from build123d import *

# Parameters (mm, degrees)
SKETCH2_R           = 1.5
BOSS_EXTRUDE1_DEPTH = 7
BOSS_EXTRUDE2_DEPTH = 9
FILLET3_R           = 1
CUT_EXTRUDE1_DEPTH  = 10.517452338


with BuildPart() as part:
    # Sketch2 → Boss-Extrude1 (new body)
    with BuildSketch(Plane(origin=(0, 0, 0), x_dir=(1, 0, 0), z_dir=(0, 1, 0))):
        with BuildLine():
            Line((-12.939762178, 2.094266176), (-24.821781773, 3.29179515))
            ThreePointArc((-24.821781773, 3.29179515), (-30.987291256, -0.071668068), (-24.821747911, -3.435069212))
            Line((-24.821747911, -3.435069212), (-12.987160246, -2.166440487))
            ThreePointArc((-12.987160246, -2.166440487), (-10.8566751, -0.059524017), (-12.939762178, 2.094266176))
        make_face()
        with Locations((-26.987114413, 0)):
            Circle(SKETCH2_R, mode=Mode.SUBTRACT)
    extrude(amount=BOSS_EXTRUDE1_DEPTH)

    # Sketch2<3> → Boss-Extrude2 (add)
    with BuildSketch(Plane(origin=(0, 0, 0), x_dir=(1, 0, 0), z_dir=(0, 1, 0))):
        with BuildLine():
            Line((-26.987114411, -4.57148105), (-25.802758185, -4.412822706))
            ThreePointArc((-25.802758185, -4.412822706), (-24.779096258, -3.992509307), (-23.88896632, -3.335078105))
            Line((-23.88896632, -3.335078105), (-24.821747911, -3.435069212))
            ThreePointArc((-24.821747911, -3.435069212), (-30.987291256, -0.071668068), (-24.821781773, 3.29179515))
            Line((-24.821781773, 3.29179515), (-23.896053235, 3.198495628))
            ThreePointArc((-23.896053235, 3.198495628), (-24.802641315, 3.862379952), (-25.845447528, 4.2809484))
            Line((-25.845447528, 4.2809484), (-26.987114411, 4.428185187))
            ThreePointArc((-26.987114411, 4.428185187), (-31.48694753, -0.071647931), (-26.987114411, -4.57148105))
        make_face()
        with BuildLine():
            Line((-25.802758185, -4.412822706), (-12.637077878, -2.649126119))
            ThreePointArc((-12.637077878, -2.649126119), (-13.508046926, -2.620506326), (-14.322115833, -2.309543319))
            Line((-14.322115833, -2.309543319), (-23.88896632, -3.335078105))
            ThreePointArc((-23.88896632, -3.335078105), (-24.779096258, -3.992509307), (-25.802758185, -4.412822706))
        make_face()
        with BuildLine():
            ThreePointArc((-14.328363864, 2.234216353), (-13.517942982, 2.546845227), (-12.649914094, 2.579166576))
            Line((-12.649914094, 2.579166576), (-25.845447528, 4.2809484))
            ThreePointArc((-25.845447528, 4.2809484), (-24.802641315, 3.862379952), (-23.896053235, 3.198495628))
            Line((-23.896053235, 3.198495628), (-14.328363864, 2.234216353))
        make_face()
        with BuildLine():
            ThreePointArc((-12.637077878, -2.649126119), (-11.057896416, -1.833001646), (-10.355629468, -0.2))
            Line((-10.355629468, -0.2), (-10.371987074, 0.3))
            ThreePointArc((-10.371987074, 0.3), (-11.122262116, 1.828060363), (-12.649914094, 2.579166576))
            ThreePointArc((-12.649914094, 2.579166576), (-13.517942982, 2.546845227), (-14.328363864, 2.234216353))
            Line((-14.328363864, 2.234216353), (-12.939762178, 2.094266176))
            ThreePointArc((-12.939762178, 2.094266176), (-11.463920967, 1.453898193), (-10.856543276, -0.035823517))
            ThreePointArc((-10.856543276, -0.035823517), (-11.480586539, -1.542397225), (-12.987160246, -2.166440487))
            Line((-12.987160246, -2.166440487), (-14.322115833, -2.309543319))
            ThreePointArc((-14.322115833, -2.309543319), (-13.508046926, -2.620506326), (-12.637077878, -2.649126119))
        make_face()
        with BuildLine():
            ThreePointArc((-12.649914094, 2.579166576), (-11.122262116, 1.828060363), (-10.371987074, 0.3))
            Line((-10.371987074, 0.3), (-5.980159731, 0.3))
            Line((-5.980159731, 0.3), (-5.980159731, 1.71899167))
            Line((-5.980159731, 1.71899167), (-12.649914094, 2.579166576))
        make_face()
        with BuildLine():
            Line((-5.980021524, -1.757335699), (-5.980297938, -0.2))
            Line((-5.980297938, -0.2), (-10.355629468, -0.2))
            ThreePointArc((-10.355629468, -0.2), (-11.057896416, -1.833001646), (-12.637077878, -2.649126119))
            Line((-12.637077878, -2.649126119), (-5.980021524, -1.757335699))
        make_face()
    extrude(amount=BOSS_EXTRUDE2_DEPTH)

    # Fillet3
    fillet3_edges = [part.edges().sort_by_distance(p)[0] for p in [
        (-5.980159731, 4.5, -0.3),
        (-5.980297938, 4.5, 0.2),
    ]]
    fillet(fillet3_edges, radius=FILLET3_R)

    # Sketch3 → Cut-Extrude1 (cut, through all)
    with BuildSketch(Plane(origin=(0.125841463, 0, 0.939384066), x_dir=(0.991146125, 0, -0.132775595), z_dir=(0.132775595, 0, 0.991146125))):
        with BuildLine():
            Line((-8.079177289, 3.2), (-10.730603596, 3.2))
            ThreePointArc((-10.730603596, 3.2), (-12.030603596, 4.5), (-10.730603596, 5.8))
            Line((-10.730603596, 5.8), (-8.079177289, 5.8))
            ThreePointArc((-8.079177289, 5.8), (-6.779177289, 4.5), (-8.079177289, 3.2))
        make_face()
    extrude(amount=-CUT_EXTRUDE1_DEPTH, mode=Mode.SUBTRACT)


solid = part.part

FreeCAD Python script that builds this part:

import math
import FreeCAD as App
import Part
import Sketcher


def edges_at(feature, points):
    """Names of the edges that pass closest to the given points."""
    edges = feature.Shape.Edges
    near = lambda p: min(range(len(edges)), key=lambda i: edges[i].distToShape(Part.Vertex(*p))[0])
    return sorted({f"Edge{near(p) + 1}" for p in points})

doc = App.newDocument("Part")
body = doc.addObject("PartDesign::Body", "Body")

sketch1 = doc.addObject("Sketcher::SketchObject", "Sketch")
body.addObject(sketch1)
sketch1.AttachmentSupport = (doc.XZ_Plane, [""])
sketch1.MapMode = "FlatFace"
sketch1.addGeometry([
    Part.LineSegment(App.Vector(-12.939762, -2.094266, 0), App.Vector(-24.821782, -3.291795, 0)),
    Part.ArcOfCircle(Part.Circle(App.Vector(-26.987114, 0.071648, 0), App.Vector(0, 0, 1), 4.000177), math.radians(57.226615), math.radians(302.772808)),
    Part.LineSegment(App.Vector(-24.821748, 3.435069, 0), App.Vector(-12.98716, 2.16644, 0)),
    Part.ArcOfCircle(Part.Circle(App.Vector(-12.98716, 0.035824, 0), App.Vector(0, 0, 1), 2.130617), math.radians(-88.725283), math.radians(90)),
    Part.Circle(App.Vector(-26.987114, 0, 0), App.Vector(0, 0, 1), 1.5),
], False)
sketch1.addConstraint([
    Sketcher.Constraint("Coincident", 0, 2, 1, 2),
    Sketcher.Constraint("Coincident", 1, 1, 2, 1),
    Sketcher.Constraint("Coincident", 2, 2, 3, 2),
    Sketcher.Constraint("Coincident", 3, 1, 0, 1),
    Sketcher.Constraint("PointOnObject", 4, 3, -1),
    Sketcher.Constraint("Vertical", 1, 3, 4, 3),
    Sketcher.Constraint("Vertical", 3, 3, 2, 2),
    Sketcher.Constraint("Diameter", 4, 3.0),
    Sketcher.Constraint("Radius", 1, 4.000177),
    Sketcher.Constraint("Radius", 3, 2.130617),
    Sketcher.Constraint("DistanceX", 3, 3, 3, 1, 0.047398),
    Sketcher.Constraint("Distance", 2, 11.90239),
    Sketcher.Constraint("DistanceX", 3, 3, -1, 1, 12.98716),
    Sketcher.Constraint("DistanceX", 0, 2, -1, 1, 24.821782),
    Sketcher.Constraint("DistanceY", -1, 1, 1, 1, 3.435069),
    Sketcher.Constraint("DistanceY", -1, 1, 2, 2, 2.16644),
    Sketcher.Constraint("DistanceY", 0, 2, 3, 3, 3.327619),
])
pad1 = doc.addObject("PartDesign::Pad", "Pad")
body.addObject(pad1)
pad1.Profile = sketch1
pad1.Length = 7
pad1.Reversed = True

sketch2 = doc.addObject("Sketcher::SketchObject", "Sketch001")
body.addObject(sketch2)
sketch2.AttachmentSupport = (doc.XZ_Plane, [""])
sketch2.MapMode = "FlatFace"
sketch2.addGeometry([
    Part.LineSegment(App.Vector(-26.987114, 4.571481, 0), App.Vector(-25.802758, 4.412823, 0)),
    Part.LineSegment(App.Vector(-25.802758, 4.412823, 0), App.Vector(-12.637078, 2.649126, 0)),
    Part.LineSegment(App.Vector(-12.637078, 2.649126, 0), App.Vector(-5.980022, 1.757336, 0)),
    Part.LineSegment(App.Vector(-5.980022, 1.757336, 0), App.Vector(-5.980298, 0.2, 0)),
    Part.LineSegment(App.Vector(-5.980298, 0.2, 0), App.Vector(-10.355629, 0.2, 0)),
    Part.LineSegment(App.Vector(-10.355629, 0.2, 0), App.Vector(-10.371987, -0.3, 0)),
    Part.LineSegment(App.Vector(-10.371987, -0.3, 0), App.Vector(-5.98016, -0.3, 0)),
    Part.LineSegment(App.Vector(-5.98016, -0.3, 0), App.Vector(-5.98016, -1.718992, 0)),
    Part.LineSegment(App.Vector(-5.98016, -1.718992, 0), App.Vector(-12.649914, -2.579167, 0)),
    Part.LineSegment(App.Vector(-12.649914, -2.579167, 0), App.Vector(-25.845448, -4.280948, 0)),
    Part.LineSegment(App.Vector(-25.845448, -4.280948, 0), App.Vector(-26.987114, -4.428185, 0)),
    Part.ArcOfCircle(Part.Circle(App.Vector(-26.987114, 0.071648, 0), App.Vector(0, 0, 1), 4.499833), math.radians(90), math.radians(270)),
    Part.LineSegment(App.Vector(-14.322116, 2.309543, 0), App.Vector(-23.888966, 3.335078, 0)),
    Part.LineSegment(App.Vector(-23.888966, 3.335078, 0), App.Vector(-24.821748, 3.435069, 0)),
    Part.ArcOfCircle(Part.Circle(App.Vector(-26.987114, 0.071648, 0), App.Vector(0, 0, 1), 4.000177), math.radians(57.226615), math.radians(302.772808)),
    Part.LineSegment(App.Vector(-24.821782, -3.291795, 0), App.Vector(-23.896053, -3.198496, 0)),
    Part.LineSegment(App.Vector(-23.896053, -3.198496, 0), App.Vector(-14.328364, -2.234216, 0)),
    Part.LineSegment(App.Vector(-14.328364, -2.234216, 0), App.Vector(-12.939762, -2.094266, 0)),
    Part.ArcOfCircle(Part.Circle(App.Vector(-12.98716, 0.035824, 0), App.Vector(0, 0, 1), 2.130617), math.radians(-88.725283), math.radians(0)),
    Part.ArcOfCircle(Part.Circle(App.Vector(-12.98716, 0.035824, 0), App.Vector(0, 0, 1), 2.130617), math.radians(0), math.radians(90)),
    Part.LineSegment(App.Vector(-12.98716, 2.16644, 0), App.Vector(-14.322116, 2.309543, 0)),
], False)
sketch2.addConstraint([
    Sketcher.Constraint("Coincident", 0, 2, 1, 1),
    Sketcher.Constraint("Coincident", 1, 2, 2, 1),
    Sketcher.Constraint("Coincident", 2, 2, 3, 1),
    Sketcher.Constraint("Coincident", 3, 2, 4, 1),
    Sketcher.Constraint("Coincident", 4, 2, 5, 1),
    Sketcher.Constraint("Coincident", 5, 2, 6, 1),
    Sketcher.Constraint("Coincident", 6, 2, 7, 1),
    Sketcher.Constraint("Coincident", 7, 2, 8, 1),
    Sketcher.Constraint("Coincident", 8, 2, 9, 1),
    Sketcher.Constraint("Coincident", 9, 2, 10, 1),
    Sketcher.Constraint("Coincident", 10, 2, 11, 2),
    Sketcher.Constraint("Coincident", 11, 1, 0, 1),
    Sketcher.Constraint("Coincident", 12, 2, 13, 1),
    Sketcher.Constraint("Coincident", 13, 2, 14, 1),
    Sketcher.Constraint("Coincident", 14, 2, 15, 1),
    Sketcher.Constraint("Coincident", 15, 2, 16, 1),
    Sketcher.Constraint("Coincident", 16, 2, 17, 1),
    Sketcher.Constraint("Coincident", 17, 2, 18, 1),
    Sketcher.Constraint("Coincident", 18, 2, 19, 1),
    Sketcher.Constraint("Coincident", 19, 2, 20, 1),
    Sketcher.Constraint("Coincident", 20, 2, 12, 1),
    Sketcher.Constraint("Horizontal", 4),
    Sketcher.Constraint("Horizontal", 6),
    Sketcher.Constraint("Vertical", 7),
    Sketcher.Constraint("Coincident", 14, 3, 11, 3),
    Sketcher.Constraint("Coincident", 19, 3, 18, 3),
    Sketcher.Constraint("DistanceY", -1, 1, 3, 2, 0.2),
    Sketcher.Constraint("DistanceY", 5, 2, -1, 1, 0.3),
    Sketcher.Constraint("Radius", 11, 4.499833),
    Sketcher.Constraint("Radius", 14, 4.000177),
    Sketcher.Constraint("Radius", 18, 2.130617),
    Sketcher.Constraint("DistanceY", 18, 3, 0, 2, 4.376999),
    Sketcher.Constraint("DistanceX", 19, 3, 6, 2, 7.007001),
    Sketcher.Constraint("DistanceX", 4, 2, 4, 1, 4.375332),
    Sketcher.Constraint("DistanceY", 7, 2, 7, 1, 1.418992),
    Sketcher.Constraint("DistanceX", 10, 2, 8, 2, 14.3372),
    Sketcher.Constraint("DistanceY", 14, 2, 15, 2, 0.0933),
    Sketcher.Constraint("DistanceY", 8, 2, 17, 2, 0.4849),
    Sketcher.Constraint("DistanceX", 16, 2, 17, 2, 1.388602),
    Sketcher.Constraint("DistanceX", 19, 3, 17, 2, 0.047398),
    Sketcher.Constraint("Distance", 1, 13.283289),
    Sketcher.Constraint("Distance", 12, 9.62166),
    Sketcher.Constraint("Distance", 15, 0.930418),
    Sketcher.Constraint("Distance", 16, 9.616159),
    Sketcher.Constraint("DistanceX", 6, 1, 6, 2, 4.391827),
    Sketcher.Constraint("DistanceX", 18, 3, -1, 1, 12.98716),
    Sketcher.Constraint("DistanceX", 0, 2, -1, 1, 25.802758),
    Sketcher.Constraint("DistanceX", 2, 2, -1, 1, 5.980022),
    Sketcher.Constraint("DistanceX", 4, 2, -1, 1, 10.355629),
    Sketcher.Constraint("DistanceY", 9, 2, -1, 1, 4.280948),
    Sketcher.Constraint("DistanceY", -1, 1, 11, 1, 4.571481),
    Sketcher.Constraint("DistanceY", -1, 1, 12, 2, 3.335078),
    Sketcher.Constraint("DistanceY", -1, 1, 13, 2, 3.435069),
    Sketcher.Constraint("DistanceX", 14, 2, -1, 1, 24.821782),
    Sketcher.Constraint("DistanceX", 19, 2, -1, 1, 12.98716),
    Sketcher.Constraint("DistanceY", -1, 1, 19, 2, 2.16644),
    Sketcher.Constraint("DistanceX", 0, 2, 1, 2, 13.16568),
    Sketcher.Constraint("DistanceY", 2, 2, 1, 2, 0.89179),
    Sketcher.Constraint("DistanceX", 9, 2, 0, 2, 0.042689),
    Sketcher.Constraint("DistanceX", 0, 2, 12, 2, 1.913792),
    Sketcher.Constraint("DistanceX", 11, 1, 12, 2, 3.098148),
    Sketcher.Constraint("DistanceX", 11, 3, 12, 2, 3.098148),
    Sketcher.Constraint("DistanceX", 10, 2, 15, 2, 3.091061),
    Sketcher.Constraint("DistanceY", 17, 2, 18, 2, 2.13009),
    Sketcher.Constraint("DistanceY", 18, 3, 20, 2, 2.27372),
])
pad2 = doc.addObject("PartDesign::Pad", "Pad001")
body.addObject(pad2)
pad2.Profile = sketch2
pad2.Length = 9
pad2.Reversed = True
doc.recompute()

fillet = doc.addObject("PartDesign::Fillet", "Fillet")
body.addObject(fillet)
fillet.Base = (pad2, edges_at(pad2, [(-5.98, 4.5, -0.3), (-5.98, 4.5, 0.2)]))
fillet.Radius = 1

sketch3 = doc.addObject("Sketcher::SketchObject", "Sketch002")
body.addObject(sketch3)
sketch3.Placement = App.Placement(App.Vector(0.125841, 0, 0.939384), App.Rotation(App.Vector(0.991146125, 0, -0.132775595), App.Vector(0, 1, 0), App.Vector(0.132775595, 0, 0.991146125), "ZXY"))
sketch3.addGeometry([
    Part.LineSegment(App.Vector(-10.730604, 3.2, 0), App.Vector(-8.079177, 3.2, 0)),
    Part.ArcOfCircle(Part.Circle(App.Vector(-8.079177, 4.5, 0), App.Vector(0, 0, 1), 1.3), math.radians(-90), math.radians(90)),
    Part.LineSegment(App.Vector(-8.079177, 5.8, 0), App.Vector(-10.730604, 5.8, 0)),
    Part.ArcOfCircle(Part.Circle(App.Vector(-10.730604, 4.5, 0), App.Vector(0, 0, 1), 1.3), math.radians(90), math.radians(270)),
], False)
sketch3.addConstraint([
    Sketcher.Constraint("Tangent", 0, 2, 1, 1),
    Sketcher.Constraint("Tangent", 1, 2, 2, 1),
    Sketcher.Constraint("Tangent", 2, 2, 3, 1),
    Sketcher.Constraint("Tangent", 3, 2, 0, 1),
    Sketcher.Constraint("Horizontal", 0),
    Sketcher.Constraint("Horizontal", 2),
    Sketcher.Constraint("Radius", 1, 1.3),
    Sketcher.Constraint("DistanceY", -1, 1, 1, 3, 4.5),
    Sketcher.Constraint("DistanceX", 0, 1, 0, 2, 2.651426),
    Sketcher.Constraint("DistanceX", 1, 3, -1, 1, 8.079177),
])
pocket1 = doc.addObject("PartDesign::Pocket", "Pocket")
body.addObject(pocket1)
pocket1.Profile = sketch3
pocket1.Type = "ThroughAll"

doc.recompute()
